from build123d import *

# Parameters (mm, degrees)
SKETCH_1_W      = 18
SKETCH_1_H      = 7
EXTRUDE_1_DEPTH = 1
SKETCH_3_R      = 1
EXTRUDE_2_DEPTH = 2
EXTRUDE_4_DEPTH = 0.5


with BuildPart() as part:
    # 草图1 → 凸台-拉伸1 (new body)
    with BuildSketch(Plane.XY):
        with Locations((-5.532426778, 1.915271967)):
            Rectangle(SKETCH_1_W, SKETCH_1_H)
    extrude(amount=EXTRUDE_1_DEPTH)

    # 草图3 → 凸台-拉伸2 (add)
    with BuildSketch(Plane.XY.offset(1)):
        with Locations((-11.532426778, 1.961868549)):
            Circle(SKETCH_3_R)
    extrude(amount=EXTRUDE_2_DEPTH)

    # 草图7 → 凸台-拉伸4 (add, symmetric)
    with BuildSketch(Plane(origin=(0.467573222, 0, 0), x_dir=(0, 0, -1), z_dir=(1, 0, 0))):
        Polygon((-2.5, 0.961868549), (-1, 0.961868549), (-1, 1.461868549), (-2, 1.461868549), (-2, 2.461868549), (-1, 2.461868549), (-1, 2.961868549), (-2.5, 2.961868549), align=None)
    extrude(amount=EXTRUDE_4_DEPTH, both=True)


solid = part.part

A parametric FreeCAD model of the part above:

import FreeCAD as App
import Part
import Sketcher
Q = App.Units.Quantity

doc = App.newDocument("Part")
params = doc.addObject("Spreadsheet::Sheet", "Params")
for row, (alias, value) in enumerate([
    ("sketch1_width", "18 mm"),
    ("sketch1_height", "7 mm"),
    ("pad1_length", "1 mm"),
    ("sketch2_diameter", "2 mm"),
    ("pad2_length", "2 mm"),
    ("sketch3_width", "1 mm"),
    ("sketch3_width2", "2 mm"),
    ("sketch3_height", "1.5 mm"),
    ("pad3_length", "1 mm"),
], start=1):
    params.set(f"A{row}", alias)
    params.set(f"B{row}", "=" + value)
    params.setAlias(f"B{row}", alias)

body = doc.addObject("PartDesign::Body", "Body")

sketch1 = body.newObject("Sketcher::SketchObject", "Sketch")
sketch1.AttachmentSupport = (doc.getObject("XY_Plane"), [""])
sketch1.MapMode = "FlatFace"
sketch1.addGeometry(Part.LineSegment(App.Vector(-15, 5, 0), App.Vector(-15, -2, 0)), False)
sketch1.addGeometry(Part.LineSegment(App.Vector(-15, -2, 0), App.Vector(3, -2, 0)), False)
sketch1.addGeometry(Part.LineSegment(App.Vector(3, -2, 0), App.Vector(3, 5, 0)), False)
sketch1.addGeometry(Part.LineSegment(App.Vector(3, 5, 0), App.Vector(-15, 5, 0)), False)
sketch1.addConstraint(Sketcher.Constraint("Coincident", 0, 2, 1, 1))
sketch1.addConstraint(Sketcher.Constraint("Coincident", 1, 2, 2, 1))
sketch1.addConstraint(Sketcher.Constraint("Coincident", 2, 2, 3, 1))
sketch1.addConstraint(Sketcher.Constraint("Coincident", 3, 2, 0, 1))
sketch1.addConstraint(Sketcher.Constraint("Vertical", 0))
sketch1.addConstraint(Sketcher.Constraint("Horizontal", 1))
sketch1.addConstraint(Sketcher.Constraint("Vertical", 2))
sketch1.addConstraint(Sketcher.Constraint("Horizontal", 3))
sketch1.addConstraint(Sketcher.Constraint("DistanceX", 1, 1, 1, 2, Q("18 mm")))
sketch1.addConstraint(Sketcher.Constraint("DistanceY", 0, 2, 0, 1, Q("7 mm")))
sketch1.addConstraint(Sketcher.Constraint("DistanceY", 0, 2, -1, 1, Q("1.584728 mm")))
sketch1.addConstraint(Sketcher.Constraint("DistanceX", 0, 2, -1, 1, Q("14.532427 mm")))
sketch1.setExpression("Constraints[8]", "Params.sketch1_width")
sketch1.setExpression("Constraints[9]", "Params.sketch1_height")
pad1 = body.newObject("PartDesign::Pad", "Pad")
pad1.Profile = sketch1
pad1.setExpression("Length", "Params.pad1_length")

sketch2 = body.newObject("Sketcher::SketchObject", "Sketch001")
sketch2.AttachmentSupport = (doc.getObject("XY_Plane"), [""])
sketch2.MapMode = "FlatFace"
sketch2.AttachmentOffset = App.Placement(App.Vector(0, 0, 1), App.Rotation())
sketch2.addGeometry(Part.Circle(App.Vector(-11.5, 2, 0), App.Vector(0, 0, 1), 1), False)
sketch2.addConstraint(Sketcher.Constraint("Diameter", 0, Q("2 mm")))
sketch2.addConstraint(Sketcher.Constraint("DistanceY", -1, 1, 0, 3, Q("1.961869 mm")))
sketch2.addConstraint(Sketcher.Constraint("DistanceX", 0, 3, -1, 1, Q("11.532427 mm")))
sketch2.setExpression("Constraints[0]", "Params.sketch2_diameter")
pad2 = body.newObject("PartDesign::Pad", "Pad001")
pad2.Profile = sketch2
pad2.setExpression("Length", "Params.pad2_length")

sketch3 = body.newObject("Sketcher::SketchObject", "Sketch002")
sketch3.AttachmentSupport = (doc.getObject("YZ_Plane"), [""])
sketch3.MapMode = "FlatFace"
sketch3.AttachmentOffset = App.Placement(App.Vector(0, 0, 0.467573), App.Rotation())
sketch3.addGeometry(Part.LineSegment(App.Vector(1, 2.5, 0), App.Vector(1, 1, 0)), False)
sketch3.addGeometry(Part.LineSegment(App.Vector(1, 1, 0), App.Vector(1.5, 1, 0)), False)
sketch3.addGeometry(Part.LineSegment(App.Vector(1.5, 1, 0), App.Vector(1.5, 2, 0)), False)
sketch3.addGeometry(Part.LineSegment(App.Vector(1.5, 2, 0), App.Vector(2.5, 2, 0)), False)
sketch3.addGeometry(Part.LineSegment(App.Vector(2.5, 2, 0), App.Vector(2.5, 1, 0)), False)
sketch3.addGeometry(Part.LineSegment(App.Vector(2.5, 1, 0), App.Vector(3, 1, 0)), False)
sketch3.addGeometry(Part.LineSegment(App.Vector(3, 1, 0), App.Vector(3, 2.5, 0)), False)
sketch3.addGeometry(Part.LineSegment(App.Vector(3, 2.5, 0), App.Vector(1, 2.5, 0)), False)
sketch3.addConstraint(Sketcher.Constraint("Coincident", 0, 2, 1, 1))
sketch3.addConstraint(Sketcher.Constraint("Coincident", 1, 2, 2, 1))
sketch3.addConstraint(Sketcher.Constraint("Coincident", 2, 2, 3, 1))
sketch3.addConstraint(Sketcher.Constraint("Coincident", 3, 2, 4, 1))
sketch3.addConstraint(Sketcher.Constraint("Coincident", 4, 2, 5, 1))
sketch3.addConstraint(Sketcher.Constraint("Coincident", 5, 2, 6, 1))
sketch3.addConstraint(Sketcher.Constraint("Coincident", 6, 2, 7, 1))
sketch3.addConstraint(Sketcher.Constraint("Coincident", 7, 2, 0, 1))
sketch3.addConstraint(Sketcher.Constraint("Vertical", 0))
sketch3.addConstraint(Sketcher.Constraint("Horizontal", 1))
sketch3.addConstraint(Sketcher.Constraint("Vertical", 2))
sketch3.addConstraint(Sketcher.Constraint("Horizontal", 3))
sketch3.addConstraint(Sketcher.Constraint("Vertical", 4))
sketch3.addConstraint(Sketcher.Constraint("Horizontal", 5))
sketch3.addConstraint(Sketcher.Constraint("Vertical", 6))
sketch3.addConstraint(Sketcher.Constraint("Horizontal", 7))
sketch3.addConstraint(Sketcher.Constraint("Horizontal", 1, 2, 4, 2))
sketch3.addConstraint(Sketcher.Constraint("Equal", 1, 5))
sketch3.addConstraint(Sketcher.Constraint("Equal", 3, 2))
sketch3.addConstraint(Sketcher.Constraint("DistanceX", 3, 1, 3, 2, Q("1 mm")))
sketch3.addConstraint(Sketcher.Constraint("DistanceX", 7, 2, 7, 1, Q("2 mm")))
sketch3.addConstraint(Sketcher.Constraint("DistanceY", 0, 2, 0, 1, Q("1.5 mm")))
sketch3.addConstraint(Sketcher.Constraint("DistanceY", -1, 1, 0, 2, Q("1 mm")))
sketch3.addConstraint(Sketcher.Constraint("DistanceX", -1, 1, 0, 2, Q("0.961869 mm")))
sketch3.setExpression("Constraints[19]", "Params.sketch3_width")
sketch3.setExpression("Constraints[20]", "Params.sketch3_width2")
sketch3.setExpression("Constraints[21]", "Params.sketch3_height")
pad3 = body.newObject("PartDesign::Pad", "Pad002")
pad3.Profile = sketch3
pad3.setExpression("Length", "Params.pad3_length")
pad3.Midplane = True

doc.recompute()
